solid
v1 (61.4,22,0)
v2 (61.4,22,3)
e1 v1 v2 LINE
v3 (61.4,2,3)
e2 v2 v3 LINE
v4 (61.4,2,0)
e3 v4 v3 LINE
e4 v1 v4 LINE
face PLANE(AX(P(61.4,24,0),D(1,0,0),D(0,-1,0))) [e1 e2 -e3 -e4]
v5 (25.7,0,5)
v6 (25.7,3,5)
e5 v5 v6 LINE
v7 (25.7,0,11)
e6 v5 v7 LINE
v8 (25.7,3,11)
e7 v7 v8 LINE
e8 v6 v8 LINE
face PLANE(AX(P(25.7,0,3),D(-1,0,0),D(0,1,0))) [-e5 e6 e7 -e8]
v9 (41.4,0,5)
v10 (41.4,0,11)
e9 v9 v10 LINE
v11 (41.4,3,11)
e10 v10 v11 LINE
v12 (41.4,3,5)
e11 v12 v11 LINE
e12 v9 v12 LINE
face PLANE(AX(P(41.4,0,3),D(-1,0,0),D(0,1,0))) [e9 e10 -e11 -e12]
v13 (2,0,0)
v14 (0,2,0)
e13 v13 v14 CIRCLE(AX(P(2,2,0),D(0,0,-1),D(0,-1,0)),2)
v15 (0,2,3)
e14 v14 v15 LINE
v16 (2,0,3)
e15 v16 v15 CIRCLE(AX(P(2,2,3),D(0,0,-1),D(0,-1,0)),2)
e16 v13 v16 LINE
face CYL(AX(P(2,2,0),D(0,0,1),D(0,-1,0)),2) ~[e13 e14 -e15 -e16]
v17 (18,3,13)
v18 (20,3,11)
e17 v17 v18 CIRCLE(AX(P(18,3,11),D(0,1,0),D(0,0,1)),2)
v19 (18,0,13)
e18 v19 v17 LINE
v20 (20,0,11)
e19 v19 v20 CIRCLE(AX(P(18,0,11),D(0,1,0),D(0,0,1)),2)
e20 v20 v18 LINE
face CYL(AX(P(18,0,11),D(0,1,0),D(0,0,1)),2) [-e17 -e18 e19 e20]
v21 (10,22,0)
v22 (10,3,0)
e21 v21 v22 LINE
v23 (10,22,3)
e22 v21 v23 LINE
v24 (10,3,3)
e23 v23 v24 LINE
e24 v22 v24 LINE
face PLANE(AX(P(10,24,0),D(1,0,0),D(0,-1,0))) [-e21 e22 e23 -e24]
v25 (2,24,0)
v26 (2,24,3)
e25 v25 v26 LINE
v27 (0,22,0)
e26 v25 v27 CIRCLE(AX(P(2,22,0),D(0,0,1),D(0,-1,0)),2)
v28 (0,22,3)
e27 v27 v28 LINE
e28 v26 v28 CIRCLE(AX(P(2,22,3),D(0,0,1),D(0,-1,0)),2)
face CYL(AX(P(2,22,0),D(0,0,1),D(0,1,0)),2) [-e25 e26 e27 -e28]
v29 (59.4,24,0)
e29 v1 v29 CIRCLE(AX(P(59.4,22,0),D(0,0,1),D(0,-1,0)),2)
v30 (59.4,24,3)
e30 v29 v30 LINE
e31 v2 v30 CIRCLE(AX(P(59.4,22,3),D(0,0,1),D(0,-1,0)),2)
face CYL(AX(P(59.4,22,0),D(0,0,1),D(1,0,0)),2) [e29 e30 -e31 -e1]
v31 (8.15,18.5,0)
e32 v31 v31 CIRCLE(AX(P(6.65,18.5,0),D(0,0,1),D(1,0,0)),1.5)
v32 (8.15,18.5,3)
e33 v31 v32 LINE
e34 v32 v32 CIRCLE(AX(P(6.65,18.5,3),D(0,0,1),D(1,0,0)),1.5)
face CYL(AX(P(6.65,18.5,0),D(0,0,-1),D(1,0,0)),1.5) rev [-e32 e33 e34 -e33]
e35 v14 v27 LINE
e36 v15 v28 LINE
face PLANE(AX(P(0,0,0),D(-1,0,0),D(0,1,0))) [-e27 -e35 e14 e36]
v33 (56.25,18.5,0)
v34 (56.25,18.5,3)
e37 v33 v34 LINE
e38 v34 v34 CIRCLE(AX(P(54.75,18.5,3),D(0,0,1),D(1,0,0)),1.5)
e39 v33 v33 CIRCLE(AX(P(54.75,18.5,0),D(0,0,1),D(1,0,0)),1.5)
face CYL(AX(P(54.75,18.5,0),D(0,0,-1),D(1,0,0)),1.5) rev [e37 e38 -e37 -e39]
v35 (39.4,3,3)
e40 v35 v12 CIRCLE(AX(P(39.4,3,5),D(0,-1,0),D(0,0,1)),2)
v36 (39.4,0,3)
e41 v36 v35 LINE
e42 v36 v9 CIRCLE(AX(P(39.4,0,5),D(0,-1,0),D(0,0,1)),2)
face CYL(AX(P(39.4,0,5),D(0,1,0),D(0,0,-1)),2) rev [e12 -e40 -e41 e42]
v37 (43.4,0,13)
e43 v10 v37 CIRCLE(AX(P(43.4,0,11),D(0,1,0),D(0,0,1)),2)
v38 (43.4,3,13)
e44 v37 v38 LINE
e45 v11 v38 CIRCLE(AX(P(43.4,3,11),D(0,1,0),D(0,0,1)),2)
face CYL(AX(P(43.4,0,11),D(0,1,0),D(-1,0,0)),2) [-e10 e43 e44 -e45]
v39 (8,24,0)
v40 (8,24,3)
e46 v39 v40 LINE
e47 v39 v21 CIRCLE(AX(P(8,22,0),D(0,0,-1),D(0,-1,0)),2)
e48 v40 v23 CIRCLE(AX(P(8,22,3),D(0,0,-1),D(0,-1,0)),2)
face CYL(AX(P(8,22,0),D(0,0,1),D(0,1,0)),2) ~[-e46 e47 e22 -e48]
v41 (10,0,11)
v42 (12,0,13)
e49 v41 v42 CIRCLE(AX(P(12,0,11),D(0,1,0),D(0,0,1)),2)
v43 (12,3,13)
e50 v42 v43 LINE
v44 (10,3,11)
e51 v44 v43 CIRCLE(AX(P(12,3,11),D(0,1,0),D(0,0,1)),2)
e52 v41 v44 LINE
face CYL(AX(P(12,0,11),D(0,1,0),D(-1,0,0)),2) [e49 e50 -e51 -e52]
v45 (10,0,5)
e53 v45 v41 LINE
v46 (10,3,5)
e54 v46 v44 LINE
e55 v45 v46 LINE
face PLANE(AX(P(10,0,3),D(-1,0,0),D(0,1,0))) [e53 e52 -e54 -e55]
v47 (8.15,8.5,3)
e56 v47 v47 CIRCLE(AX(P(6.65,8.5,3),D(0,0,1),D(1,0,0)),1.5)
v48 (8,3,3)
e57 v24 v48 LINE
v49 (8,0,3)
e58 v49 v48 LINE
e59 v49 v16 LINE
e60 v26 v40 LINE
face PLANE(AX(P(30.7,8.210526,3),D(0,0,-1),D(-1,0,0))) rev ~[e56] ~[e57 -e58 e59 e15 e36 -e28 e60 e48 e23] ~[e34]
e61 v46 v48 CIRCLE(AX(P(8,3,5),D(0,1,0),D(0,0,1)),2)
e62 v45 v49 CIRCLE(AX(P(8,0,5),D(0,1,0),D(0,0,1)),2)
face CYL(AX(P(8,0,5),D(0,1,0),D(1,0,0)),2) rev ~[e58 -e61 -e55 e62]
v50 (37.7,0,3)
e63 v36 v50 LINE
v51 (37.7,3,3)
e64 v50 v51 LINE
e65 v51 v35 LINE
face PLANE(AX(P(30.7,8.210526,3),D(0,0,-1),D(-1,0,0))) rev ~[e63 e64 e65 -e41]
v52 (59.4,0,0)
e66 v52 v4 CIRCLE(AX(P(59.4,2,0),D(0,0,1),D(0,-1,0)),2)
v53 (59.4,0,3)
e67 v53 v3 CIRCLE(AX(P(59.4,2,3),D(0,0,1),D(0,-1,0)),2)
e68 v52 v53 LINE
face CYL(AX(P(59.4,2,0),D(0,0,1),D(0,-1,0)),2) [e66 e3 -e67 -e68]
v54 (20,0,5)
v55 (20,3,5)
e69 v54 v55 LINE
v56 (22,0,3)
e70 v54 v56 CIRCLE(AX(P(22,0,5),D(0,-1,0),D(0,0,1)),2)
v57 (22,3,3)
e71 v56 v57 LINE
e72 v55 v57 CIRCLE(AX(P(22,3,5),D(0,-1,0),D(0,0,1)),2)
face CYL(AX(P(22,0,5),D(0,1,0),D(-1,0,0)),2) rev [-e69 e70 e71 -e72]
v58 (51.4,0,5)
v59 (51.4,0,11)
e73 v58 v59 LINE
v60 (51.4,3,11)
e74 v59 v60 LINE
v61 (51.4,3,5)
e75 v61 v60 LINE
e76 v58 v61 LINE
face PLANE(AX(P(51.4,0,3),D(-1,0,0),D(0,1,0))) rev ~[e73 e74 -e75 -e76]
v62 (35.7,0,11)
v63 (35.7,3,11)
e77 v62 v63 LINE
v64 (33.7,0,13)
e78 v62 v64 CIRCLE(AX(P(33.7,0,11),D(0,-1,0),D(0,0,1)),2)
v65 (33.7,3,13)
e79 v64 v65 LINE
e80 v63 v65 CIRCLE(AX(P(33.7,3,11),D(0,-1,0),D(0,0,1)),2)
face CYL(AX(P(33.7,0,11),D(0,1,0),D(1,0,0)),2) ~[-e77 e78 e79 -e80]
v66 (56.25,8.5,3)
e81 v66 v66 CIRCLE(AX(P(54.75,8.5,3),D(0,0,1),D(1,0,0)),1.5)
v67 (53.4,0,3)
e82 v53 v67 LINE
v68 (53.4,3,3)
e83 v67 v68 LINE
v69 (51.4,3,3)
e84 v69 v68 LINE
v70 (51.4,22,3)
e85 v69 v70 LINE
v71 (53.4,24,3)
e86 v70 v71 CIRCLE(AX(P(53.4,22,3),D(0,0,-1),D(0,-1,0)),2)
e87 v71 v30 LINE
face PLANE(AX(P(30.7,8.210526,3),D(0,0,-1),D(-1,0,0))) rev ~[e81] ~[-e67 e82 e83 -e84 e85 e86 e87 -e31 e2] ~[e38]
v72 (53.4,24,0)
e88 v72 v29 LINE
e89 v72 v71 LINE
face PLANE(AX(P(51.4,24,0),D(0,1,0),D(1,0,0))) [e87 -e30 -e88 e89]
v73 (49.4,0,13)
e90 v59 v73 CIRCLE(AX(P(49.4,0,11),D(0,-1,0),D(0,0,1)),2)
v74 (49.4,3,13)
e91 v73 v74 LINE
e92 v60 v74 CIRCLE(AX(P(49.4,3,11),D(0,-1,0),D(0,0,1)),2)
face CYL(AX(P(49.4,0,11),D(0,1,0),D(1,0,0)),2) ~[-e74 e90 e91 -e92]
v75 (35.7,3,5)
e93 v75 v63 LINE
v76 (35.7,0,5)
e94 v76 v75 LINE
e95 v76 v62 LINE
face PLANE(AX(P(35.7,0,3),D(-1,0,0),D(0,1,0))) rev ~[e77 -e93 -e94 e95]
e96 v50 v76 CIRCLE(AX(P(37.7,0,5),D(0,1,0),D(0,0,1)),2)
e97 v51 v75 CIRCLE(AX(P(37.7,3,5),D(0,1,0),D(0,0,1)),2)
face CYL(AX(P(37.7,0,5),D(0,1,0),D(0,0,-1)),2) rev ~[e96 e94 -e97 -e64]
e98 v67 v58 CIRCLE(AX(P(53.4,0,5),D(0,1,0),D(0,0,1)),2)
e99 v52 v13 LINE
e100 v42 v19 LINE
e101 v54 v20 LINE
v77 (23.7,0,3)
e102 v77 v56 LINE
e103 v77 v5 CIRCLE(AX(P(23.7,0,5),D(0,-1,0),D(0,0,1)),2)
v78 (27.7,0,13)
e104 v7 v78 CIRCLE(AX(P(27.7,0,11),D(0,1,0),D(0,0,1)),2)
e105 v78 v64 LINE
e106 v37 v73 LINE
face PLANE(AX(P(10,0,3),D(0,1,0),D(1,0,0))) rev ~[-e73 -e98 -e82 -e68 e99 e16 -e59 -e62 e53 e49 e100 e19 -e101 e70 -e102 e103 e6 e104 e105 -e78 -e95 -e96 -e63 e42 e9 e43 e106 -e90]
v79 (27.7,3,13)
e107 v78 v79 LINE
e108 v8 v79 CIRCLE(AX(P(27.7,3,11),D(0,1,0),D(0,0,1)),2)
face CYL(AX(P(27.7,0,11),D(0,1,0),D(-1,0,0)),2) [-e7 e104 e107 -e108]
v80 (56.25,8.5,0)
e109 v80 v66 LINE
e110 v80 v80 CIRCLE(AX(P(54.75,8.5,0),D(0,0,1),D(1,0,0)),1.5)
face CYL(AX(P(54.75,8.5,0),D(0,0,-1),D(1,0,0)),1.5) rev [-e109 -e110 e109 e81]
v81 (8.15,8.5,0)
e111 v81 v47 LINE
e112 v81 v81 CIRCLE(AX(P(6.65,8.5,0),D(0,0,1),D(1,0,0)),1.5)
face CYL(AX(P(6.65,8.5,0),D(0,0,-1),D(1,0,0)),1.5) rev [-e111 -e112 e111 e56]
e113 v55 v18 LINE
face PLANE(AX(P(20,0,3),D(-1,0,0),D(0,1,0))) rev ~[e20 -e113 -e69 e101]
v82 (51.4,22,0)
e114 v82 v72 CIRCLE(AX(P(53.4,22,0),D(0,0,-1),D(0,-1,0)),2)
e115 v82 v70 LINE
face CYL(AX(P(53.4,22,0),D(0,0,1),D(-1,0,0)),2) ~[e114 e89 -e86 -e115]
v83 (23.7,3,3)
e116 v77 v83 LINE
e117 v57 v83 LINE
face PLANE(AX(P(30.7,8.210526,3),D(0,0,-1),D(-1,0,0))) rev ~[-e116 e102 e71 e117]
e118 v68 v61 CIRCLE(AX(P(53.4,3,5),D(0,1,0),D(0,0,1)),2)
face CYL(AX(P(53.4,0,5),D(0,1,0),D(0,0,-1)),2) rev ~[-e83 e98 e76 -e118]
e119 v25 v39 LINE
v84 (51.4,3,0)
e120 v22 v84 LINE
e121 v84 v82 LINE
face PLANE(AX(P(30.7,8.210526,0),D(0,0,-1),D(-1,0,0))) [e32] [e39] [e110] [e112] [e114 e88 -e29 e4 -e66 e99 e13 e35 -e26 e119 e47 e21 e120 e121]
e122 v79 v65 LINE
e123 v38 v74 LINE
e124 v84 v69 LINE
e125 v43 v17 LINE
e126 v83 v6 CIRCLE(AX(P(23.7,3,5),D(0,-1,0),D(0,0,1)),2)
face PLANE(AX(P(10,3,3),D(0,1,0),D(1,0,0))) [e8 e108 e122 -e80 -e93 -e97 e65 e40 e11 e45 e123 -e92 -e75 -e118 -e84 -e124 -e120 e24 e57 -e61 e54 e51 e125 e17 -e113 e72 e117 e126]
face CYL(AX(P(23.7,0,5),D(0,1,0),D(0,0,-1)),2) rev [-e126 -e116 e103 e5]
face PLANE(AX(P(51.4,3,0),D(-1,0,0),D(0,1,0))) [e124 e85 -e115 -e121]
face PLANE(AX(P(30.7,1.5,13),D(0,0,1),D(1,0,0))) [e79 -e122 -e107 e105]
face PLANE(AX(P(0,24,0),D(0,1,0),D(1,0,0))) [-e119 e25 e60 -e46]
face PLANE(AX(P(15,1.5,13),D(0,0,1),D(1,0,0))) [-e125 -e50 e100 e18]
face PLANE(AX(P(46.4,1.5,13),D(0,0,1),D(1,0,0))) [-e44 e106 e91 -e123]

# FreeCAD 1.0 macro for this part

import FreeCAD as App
import Part
import Sketcher

V = App.Vector
Q = App.Units.Quantity


def edges_at(feature, points):
    """Names of the edges that pass closest to the given points."""
    edges = feature.Shape.Edges
    near = lambda p: min(range(len(edges)), key=lambda i: edges[i].distToShape(Part.Vertex(*p))[0])
    return sorted({f"Edge{near(p) + 1}" for p in points})

doc = App.newDocument("Part")
params = doc.addObject("Spreadsheet::Sheet", "Params")
for row, (alias, value) in enumerate([
    ("sketch1_diameter", "3 mm"),
    ("sketch1_width", "10 mm"),
    ("sketch1_height", "21 mm"),
    ("sketch1_height2", "24 mm"),
    ("sketch1_width2", "61.4 mm"),
    ("pad1_length", "3 mm"),
    ("sketch2_width", "10 mm"),
    ("sketch2_height", "3 mm"),
    ("pad2_length", "10 mm"),
    ("fillet_radius", "2 mm"),
], start=1):
    params.set(f"A{row}", alias)
    params.set(f"B{row}", "=" + value)
    params.setAlias(f"B{row}", alias)

body = doc.addObject("PartDesign::Body", "Body")

# Sketch on XY plane
sketch1 = body.newObject("Sketcher::SketchObject", "Sketch")
sketch1.AttachmentSupport = (doc.getObject("XY_Plane"), [""])
sketch1.MapMode = "FlatFace"
sketch1.addGeometry(Part.LineSegment(V(10, 3, 0), V(10, 24, 0)), False)
sketch1.addGeometry(Part.LineSegment(V(10, 24, 0), V(0, 24, 0)), False)
sketch1.addGeometry(Part.LineSegment(V(0, 24, 0), V(0, 0, 0)), False)
sketch1.addGeometry(Part.LineSegment(V(0, 0, 0), V(61.4, 0, 0)), False)
sketch1.addGeometry(Part.LineSegment(V(61.4, 0, 0), V(61.4, 24, 0)), False)
sketch1.addGeometry(Part.LineSegment(V(61.4, 24, 0), V(51.4, 24, 0)), False)
sketch1.addGeometry(Part.LineSegment(V(51.4, 24, 0), V(51.4, 3, 0)), False)
sketch1.addGeometry(Part.LineSegment(V(51.4, 3, 0), V(10, 3, 0)), False)
sketch1.addGeometry(Part.Circle(V(54.8, 8.5, 0), V(0, 0, 1), 1.5), False)
sketch1.addGeometry(Part.Circle(V(6.7, 8.5, 0), V(0, 0, 1), 1.5), False)
sketch1.addGeometry(Part.Circle(V(54.8, 18.5, 0), V(0, 0, 1), 1.5), False)
sketch1.addGeometry(Part.Circle(V(6.7, 18.5, 0), V(0, 0, 1), 1.5), False)
sketch1.addConstraint(Sketcher.Constraint("Coincident", 0, 2, 1, 1))
sketch1.addConstraint(Sketcher.Constraint("Coincident", 1, 2, 2, 1))
sketch1.addConstraint(Sketcher.Constraint("Coincident", 2, 2, 3, 1))
sketch1.addConstraint(Sketcher.Constraint("Coincident", 3, 2, 4, 1))
sketch1.addConstraint(Sketcher.Constraint("Coincident", 4, 2, 5, 1))
sketch1.addConstraint(Sketcher.Constraint("Coincident", 5, 2, 6, 1))
sketch1.addConstraint(Sketcher.Constraint("Coincident", 6, 2, 7, 1))
sketch1.addConstraint(Sketcher.Constraint("Coincident", 7, 2, 0, 1))
sketch1.addConstraint(Sketcher.Constraint("Vertical", 0))
sketch1.addConstraint(Sketcher.Constraint("Horizontal", 1))
sketch1.addConstraint(Sketcher.Constraint("Vertical", 2))
sketch1.addConstraint(Sketcher.Constraint("Horizontal", 3))
sketch1.addConstraint(Sketcher.Constraint("Vertical", 4))
sketch1.addConstraint(Sketcher.Constraint("Horizontal", 5))
sketch1.addConstraint(Sketcher.Constraint("Vertical", 6))
sketch1.addConstraint(Sketcher.Constraint("Horizontal", 7))
sketch1.addConstraint(Sketcher.Constraint("Coincident", 2, 2, -1, 1))
sketch1.addConstraint(Sketcher.Constraint("Equal", 8, 9))
sketch1.addConstraint(Sketcher.Constraint("Equal", 9, 10))
sketch1.addConstraint(Sketcher.Constraint("Equal", 10, 11))
sketch1.addConstraint(Sketcher.Constraint("Horizontal", 8, 3, 9, 3))
sketch1.addConstraint(Sketcher.Constraint("Horizontal", 10, 3, 11, 3))
sketch1.addConstraint(Sketcher.Constraint("Horizontal", 1, 2, 4, 2))
sketch1.addConstraint(Sketcher.Constraint("Vertical", 8, 3, 10, 3))
sketch1.addConstraint(Sketcher.Constraint("Vertical", 9, 3, 11, 3))
sketch1.addConstraint(Sketcher.Constraint("Equal", 1, 5))
sketch1.addConstraint(Sketcher.Constraint("Diameter", 8, Q("3 mm")))
sketch1.addConstraint(Sketcher.Constraint("DistanceX", 1, 2, 1, 1, Q("10 mm")))
sketch1.addConstraint(Sketcher.Constraint("DistanceY", 0, 1, 0, 2, Q("21 mm")))
sketch1.addConstraint(Sketcher.Constraint("DistanceY", 2, 2, 2, 1, Q("24 mm")))
sketch1.addConstraint(Sketcher.Constraint("DistanceX", 3, 1, 3, 2, Q("61.4 mm")))
sketch1.addConstraint(Sketcher.Constraint("DistanceY", 8, 3, 10, 3, Q("10 mm")))
sketch1.addConstraint(Sketcher.Constraint("DistanceY", -1, 1, 8, 3, Q("8.5 mm")))
sketch1.addConstraint(Sketcher.Constraint("DistanceX", 9, 3, 8, 3, Q("48.1 mm")))
sketch1.addConstraint(Sketcher.Constraint("DistanceX", -1, 1, 8, 3, Q("54.75 mm")))
sketch1.setExpression("Constraints[26]", "Params.sketch1_diameter")
sketch1.setExpression("Constraints[27]", "Params.sketch1_width")
sketch1.setExpression("Constraints[28]", "Params.sketch1_height")
sketch1.setExpression("Constraints[29]", "Params.sketch1_height2")
sketch1.setExpression("Constraints[30]", "Params.sketch1_width2")
pad1 = body.newObject("PartDesign::Pad", "Pad")
pad1.Profile = sketch1
pad1.setExpression("Length", "Params.pad1_length")

# Sketch on XY plane
sketch2 = body.newObject("Sketcher::SketchObject", "Sketch001")
sketch2.AttachmentSupport = (doc.getObject("XY_Plane"), [""])
sketch2.MapMode = "FlatFace"
sketch2.AttachmentOffset = App.Placement(V(0, 0, 3), App.Rotation())
sketch2.addGeometry(Part.LineSegment(V(10, 3, 0), V(10, 0, 0)), False)
sketch2.addGeometry(Part.LineSegment(V(10, 0, 0), V(20, 0, 0)), False)
sketch2.addGeometry(Part.LineSegment(V(20, 0, 0), V(20, 3, 0)), False)
sketch2.addGeometry(Part.LineSegment(V(20, 3, 0), V(10, 3, 0)), False)
sketch2.addGeometry(Part.LineSegment(V(41.4, 3, 0), V(41.4, 0, 0)), False)
sketch2.addGeometry(Part.LineSegment(V(41.4, 0, 0), V(51.4, 0, 0)), False)
sketch2.addGeometry(Part.LineSegment(V(51.4, 0, 0), V(51.4, 3, 0)), False)
sketch2.addGeometry(Part.LineSegment(V(51.4, 3, 0), V(41.4, 3, 0)), False)
sketch2.addGeometry(Part.LineSegment(V(25.7, 3, 0), V(25.7, 0, 0)), False)
sketch2.addGeometry(Part.LineSegment(V(25.7, 0, 0), V(35.7, 0, 0)), False)
sketch2.addGeometry(Part.LineSegment(V(35.7, 0, 0), V(35.7, 3, 0)), False)
sketch2.addGeometry(Part.LineSegment(V(35.7, 3, 0), V(25.7, 3, 0)), False)
sketch2.addConstraint(Sketcher.Constraint("Coincident", 0, 2, 1, 1))
sketch2.addConstraint(Sketcher.Constraint("Coincident", 1, 2, 2, 1))
sketch2.addConstraint(Sketcher.Constraint("Coincident", 2, 2, 3, 1))
sketch2.addConstraint(Sketcher.Constraint("Coincident", 3, 2, 0, 1))
sketch2.addConstraint(Sketcher.Constraint("Coincident", 4, 2, 5, 1))
sketch2.addConstraint(Sketcher.Constraint("Coincident", 5, 2, 6, 1))
sketch2.addConstraint(Sketcher.Constraint("Coincident", 6, 2, 7, 1))
sketch2.addConstraint(Sketcher.Constraint("Coincident", 7, 2, 4, 1))
sketch2.addConstraint(Sketcher.Constraint("Coincident", 8, 2, 9, 1))
sketch2.addConstraint(Sketcher.Constraint("Coincident", 9, 2, 10, 1))
sketch2.addConstraint(Sketcher.Constraint("Coincident", 10, 2, 11, 1))
sketch2.addConstraint(Sketcher.Constraint("Coincident", 11, 2, 8, 1))
sketch2.addConstraint(Sketcher.Constraint("Vertical", 0))
sketch2.addConstraint(Sketcher.Constraint("Horizontal", 1))
sketch2.addConstraint(Sketcher.Constraint("Vertical", 2))
sketch2.addConstraint(Sketcher.Constraint("Horizontal", 3))
sketch2.addConstraint(Sketcher.Constraint("Vertical", 4))
sketch2.addConstraint(Sketcher.Constraint("Horizontal", 5))
sketch2.addConstraint(Sketcher.Constraint("Vertical", 6))
sketch2.addConstraint(Sketcher.Constraint("Horizontal", 7))
sketch2.addConstraint(Sketcher.Constraint("Vertical", 8))
sketch2.addConstraint(Sketcher.Constraint("Horizontal", 9))
sketch2.addConstraint(Sketcher.Constraint("Vertical", 10))
sketch2.addConstraint(Sketcher.Constraint("Horizontal", 11))
sketch2.addConstraint(Sketcher.Constraint("PointOnObject", 0, 2, -1))
sketch2.addConstraint(Sketcher.Constraint("PointOnObject", 4, 2, -1))
sketch2.addConstraint(Sketcher.Constraint("PointOnObject", 8, 2, -1))
sketch2.addConstraint(Sketcher.Constraint("Horizontal", 3, 2, 6, 2))
sketch2.addConstraint(Sketcher.Constraint("Horizontal", 7, 2, 10, 2))
sketch2.addConstraint(Sketcher.Constraint("Equal", 3, 5))
sketch2.addConstraint(Sketcher.Constraint("Equal", 7, 9))
sketch2.addConstraint(Sketcher.Constraint("DistanceX", 1, 1, 1, 2, Q("10 mm")))
sketch2.addConstraint(Sketcher.Constraint("DistanceY", 0, 2, 0, 1, Q("3 mm")))
sketch2.addConstraint(Sketcher.Constraint("DistanceX", -1, 1, 0, 2, Q("10 mm")))
sketch2.addConstraint(Sketcher.Constraint("DistanceX", -1, 1, 4, 2, Q("41.4 mm")))
sketch2.addConstraint(Sketcher.Constraint("DistanceX", -1, 1, 8, 2, Q("25.7 mm")))
sketch2.setExpression("Constraints[31]", "Params.sketch2_width")
sketch2.setExpression("Constraints[32]", "Params.sketch2_height")
pad2 = body.newObject("PartDesign::Pad", "Pad001")
pad2.Profile = sketch2
pad2.setExpression("Length", "Params.pad2_length")
doc.recompute()

fillet = body.newObject("PartDesign::Fillet", "Fillet")
fillet.Base = (pad2, edges_at(pad2, [
    (10, 1.5, 3),
    (51.4, 1.5, 3),
    (20, 1.5, 3),
    (10, 1.5, 13),
    (20, 1.5, 13),
    (25.7, 1.5, 3),
    (41.4, 1.5, 3),
    (35.7, 1.5, 3),
    (25.7, 1.5, 13),
    (35.7, 1.5, 13),
    (41.4, 1.5, 13),
    (51.4, 1.5, 13),
    (51.4, 24, 1.5),
    (61.4, 24, 1.5),
    (61.4, 0, 1.5),
    (0, 0, 1.5),
    (0, 24, 1.5),
    (10, 24, 1.5),
]))
fillet.setExpression("Radius", "Params.fillet_radius")

doc.recompute()
